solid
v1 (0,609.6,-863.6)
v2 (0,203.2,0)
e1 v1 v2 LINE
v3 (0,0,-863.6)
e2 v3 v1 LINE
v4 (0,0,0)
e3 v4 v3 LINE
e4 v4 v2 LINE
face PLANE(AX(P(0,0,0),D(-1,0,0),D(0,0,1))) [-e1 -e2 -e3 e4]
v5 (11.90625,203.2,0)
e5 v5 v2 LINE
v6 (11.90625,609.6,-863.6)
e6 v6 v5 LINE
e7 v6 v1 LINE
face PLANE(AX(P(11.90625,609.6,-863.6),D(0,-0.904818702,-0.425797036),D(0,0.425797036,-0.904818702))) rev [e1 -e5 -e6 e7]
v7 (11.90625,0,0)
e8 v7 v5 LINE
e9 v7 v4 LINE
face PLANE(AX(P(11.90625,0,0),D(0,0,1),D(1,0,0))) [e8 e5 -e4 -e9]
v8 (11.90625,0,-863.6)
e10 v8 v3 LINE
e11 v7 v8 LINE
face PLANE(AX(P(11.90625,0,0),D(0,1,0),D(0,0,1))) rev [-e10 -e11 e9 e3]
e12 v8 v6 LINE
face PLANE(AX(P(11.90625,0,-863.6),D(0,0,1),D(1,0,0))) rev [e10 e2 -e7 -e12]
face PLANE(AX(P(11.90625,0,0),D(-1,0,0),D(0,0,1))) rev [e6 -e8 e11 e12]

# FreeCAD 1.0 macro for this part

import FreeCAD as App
import Part
import Sketcher
from FreeCAD import Vector
Q = App.Units.Quantity

doc = App.newDocument("Part")
body = doc.addObject("PartDesign::Body", "Body")

sketch1 = body.newObject("Sketcher::SketchObject", "Sketch")
sketch1.AttachmentSupport = (doc.getObject("YZ_Plane"), [""])
sketch1.MapMode = "FlatFace"
sketch1.addGeometry(Part.LineSegment(Vector(0, 0, 0), Vector(0, -864, 0)), False)
sketch1.addGeometry(Part.LineSegment(Vector(0, -864, 0), Vector(610, -864, 0)), False)
sketch1.addGeometry(Part.LineSegment(Vector(610, -864, 0), Vector(203, 0, 0)), False)
sketch1.addGeometry(Part.LineSegment(Vector(203, 0, 0), Vector(0, 0, 0)), False)
sketch1.addConstraint(Sketcher.Constraint("Coincident", 0, 2, 1, 1))
sketch1.addConstraint(Sketcher.Constraint("Coincident", 1, 2, 2, 1))
sketch1.addConstraint(Sketcher.Constraint("Coincident", 2, 2, 3, 1))
sketch1.addConstraint(Sketcher.Constraint("Coincident", 3, 2, 0, 1))
sketch1.addConstraint(Sketcher.Constraint("Vertical", 0))
sketch1.addConstraint(Sketcher.Constraint("Horizontal", 1))
sketch1.addConstraint(Sketcher.Constraint("Horizontal", 3))
sketch1.addConstraint(Sketcher.Constraint("Coincident", 3, 2, -1, 1))
sketch1.addConstraint(Sketcher.Constraint("DistanceX", 1, 1, 1, 2, Q("24 in")))
sketch1.addConstraint(Sketcher.Constraint("DistanceX", 3, 2, 3, 1, Q("8 in")))
sketch1.addConstraint(Sketcher.Constraint("DistanceY", 0, 2, 0, 1, Q("34 in")))
pad1 = body.newObject("PartDesign::Pad", "Pad")
pad1.Profile = sketch1
pad1.Length = Q("0.46875 in")

doc.recompute()
